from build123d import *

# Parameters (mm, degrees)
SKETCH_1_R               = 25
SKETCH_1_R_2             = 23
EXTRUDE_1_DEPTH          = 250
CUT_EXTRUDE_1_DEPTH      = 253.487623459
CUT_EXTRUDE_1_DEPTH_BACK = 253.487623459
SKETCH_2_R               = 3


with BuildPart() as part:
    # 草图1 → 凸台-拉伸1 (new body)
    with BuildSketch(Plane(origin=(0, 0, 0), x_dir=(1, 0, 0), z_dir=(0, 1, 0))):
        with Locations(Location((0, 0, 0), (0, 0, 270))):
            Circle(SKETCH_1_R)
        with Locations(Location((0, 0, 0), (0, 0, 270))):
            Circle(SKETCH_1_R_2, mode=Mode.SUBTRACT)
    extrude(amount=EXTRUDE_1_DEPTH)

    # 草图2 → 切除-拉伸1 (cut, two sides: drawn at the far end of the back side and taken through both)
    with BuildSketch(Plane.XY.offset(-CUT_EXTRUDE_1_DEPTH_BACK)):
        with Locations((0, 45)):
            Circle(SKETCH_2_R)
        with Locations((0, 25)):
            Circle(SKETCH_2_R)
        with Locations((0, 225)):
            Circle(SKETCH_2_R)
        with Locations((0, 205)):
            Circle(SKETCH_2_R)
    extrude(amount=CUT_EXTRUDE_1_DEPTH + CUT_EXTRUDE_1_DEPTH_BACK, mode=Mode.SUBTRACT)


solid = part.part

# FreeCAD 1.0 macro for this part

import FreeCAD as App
import Part
import Sketcher

V = App.Vector

doc = App.newDocument("Part")
body = doc.addObject("PartDesign::Body", "Body")

# Sketch on XZ plane
sketch1 = body.newObject("Sketcher::SketchObject", "Sketch")
sketch1.AttachmentSupport = (doc.getObject("XZ_Plane"), [""])
sketch1.MapMode = "FlatFace"
sketch1.addGeometry([
    Part.Circle(V(0, 0, 0), V(0, 0, 1), 25),
    Part.Circle(V(0, 0, 0), V(0, 0, 1), 23),
], False)
sketch1.addConstraint([
    Sketcher.Constraint("Coincident", 0, 3, -1, 1),
    Sketcher.Constraint("Coincident", 1, 3, -1, 1),
    Sketcher.Constraint("Diameter", 0, 50.0),
    Sketcher.Constraint("Diameter", 1, 46.0),
])
pad1 = body.newObject("PartDesign::Pad", "Pad")
pad1.Profile = sketch1
pad1.Length = 250
pad1.Reversed = True

# Sketch on XY plane
sketch2 = body.newObject("Sketcher::SketchObject", "Sketch001")
sketch2.AttachmentSupport = (doc.getObject("XY_Plane"), [""])
sketch2.MapMode = "FlatFace"
sketch2.addGeometry([
    Part.Circle(V(0, 45, 0), V(0, 0, 1), 3),
    Part.Circle(V(0, 25, 0), V(0, 0, 1), 3),
    Part.Circle(V(0, 225, 0), V(0, 0, 1), 3),
    Part.Circle(V(0, 205, 0), V(0, 0, 1), 3),
], False)
sketch2.addConstraint([
    Sketcher.Constraint("Equal", 0, 1),
    Sketcher.Constraint("Equal", 1, 2),
    Sketcher.Constraint("Equal", 2, 3),
    Sketcher.Constraint("PointOnObject", 0, 3, -2),
    Sketcher.Constraint("PointOnObject", 1, 3, -2),
    Sketcher.Constraint("PointOnObject", 2, 3, -2),
    Sketcher.Constraint("PointOnObject", 3, 3, -2),
    Sketcher.Constraint("Diameter", 0, 6.0),
    Sketcher.Constraint("DistanceY", -1, 1, 0, 3, 45.0),
    Sketcher.Constraint("DistanceY", -1, 1, 1, 3, 25.0),
    Sketcher.Constraint("DistanceY", -1, 1, 2, 3, 225.0),
    Sketcher.Constraint("DistanceY", -1, 1, 3, 3, 205.0),
])
pocket1 = body.newObject("PartDesign::Pocket", "Pocket")
pocket1.Profile = sketch2
pocket1.Type = "ThroughAll"
pocket1.Midplane = True

doc.recompute()
